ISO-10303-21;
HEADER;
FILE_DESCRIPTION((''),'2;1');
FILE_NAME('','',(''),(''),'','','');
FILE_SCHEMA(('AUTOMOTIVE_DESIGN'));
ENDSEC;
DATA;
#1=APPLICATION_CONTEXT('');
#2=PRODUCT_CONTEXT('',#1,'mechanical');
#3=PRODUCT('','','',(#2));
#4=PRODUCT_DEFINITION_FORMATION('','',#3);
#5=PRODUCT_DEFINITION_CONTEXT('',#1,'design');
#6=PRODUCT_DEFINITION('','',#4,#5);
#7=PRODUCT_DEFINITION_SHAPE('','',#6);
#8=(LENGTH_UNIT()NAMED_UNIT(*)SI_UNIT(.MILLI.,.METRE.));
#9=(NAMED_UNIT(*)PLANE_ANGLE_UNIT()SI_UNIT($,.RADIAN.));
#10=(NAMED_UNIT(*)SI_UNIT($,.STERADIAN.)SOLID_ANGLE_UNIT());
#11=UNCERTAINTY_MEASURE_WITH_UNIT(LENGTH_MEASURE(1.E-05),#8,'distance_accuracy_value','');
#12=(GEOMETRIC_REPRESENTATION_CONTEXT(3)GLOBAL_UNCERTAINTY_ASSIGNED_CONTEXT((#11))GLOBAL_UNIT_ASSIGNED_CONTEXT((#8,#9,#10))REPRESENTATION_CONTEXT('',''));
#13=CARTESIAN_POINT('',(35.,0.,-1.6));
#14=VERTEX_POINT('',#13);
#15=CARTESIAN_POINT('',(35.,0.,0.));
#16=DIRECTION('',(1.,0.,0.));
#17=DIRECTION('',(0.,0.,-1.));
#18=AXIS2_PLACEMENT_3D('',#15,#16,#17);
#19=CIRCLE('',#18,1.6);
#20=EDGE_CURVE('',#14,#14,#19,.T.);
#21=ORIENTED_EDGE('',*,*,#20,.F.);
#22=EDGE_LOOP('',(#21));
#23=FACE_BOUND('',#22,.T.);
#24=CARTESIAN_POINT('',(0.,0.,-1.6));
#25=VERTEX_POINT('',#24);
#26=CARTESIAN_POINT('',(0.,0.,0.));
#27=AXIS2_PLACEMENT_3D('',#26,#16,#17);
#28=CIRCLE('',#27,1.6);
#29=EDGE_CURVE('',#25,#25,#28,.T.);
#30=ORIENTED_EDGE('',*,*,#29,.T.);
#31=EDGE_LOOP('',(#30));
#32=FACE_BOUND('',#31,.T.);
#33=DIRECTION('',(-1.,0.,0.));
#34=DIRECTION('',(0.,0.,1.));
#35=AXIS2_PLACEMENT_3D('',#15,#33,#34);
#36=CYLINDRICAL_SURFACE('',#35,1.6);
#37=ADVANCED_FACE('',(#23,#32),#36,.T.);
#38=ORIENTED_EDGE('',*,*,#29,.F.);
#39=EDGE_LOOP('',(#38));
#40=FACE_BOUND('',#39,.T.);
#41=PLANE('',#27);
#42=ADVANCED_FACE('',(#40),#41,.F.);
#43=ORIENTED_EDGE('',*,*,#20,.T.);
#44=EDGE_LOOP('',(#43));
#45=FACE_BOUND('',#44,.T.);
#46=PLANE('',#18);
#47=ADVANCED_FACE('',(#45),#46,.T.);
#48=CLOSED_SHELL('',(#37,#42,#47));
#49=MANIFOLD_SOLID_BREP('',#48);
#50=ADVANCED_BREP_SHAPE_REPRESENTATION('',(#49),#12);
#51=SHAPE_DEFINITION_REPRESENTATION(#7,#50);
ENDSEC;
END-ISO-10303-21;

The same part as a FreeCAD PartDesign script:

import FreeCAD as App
import Part
import Sketcher

V = App.Vector

doc = App.newDocument("Part")
body = doc.addObject("PartDesign::Body", "Body")

sketch1 = body.newObject("Sketcher::SketchObject", "Sketch")
sketch1.AttachmentSupport = (doc.getObject("YZ_Plane"), [""])
sketch1.MapMode = "FlatFace"
sketch1.addGeometry(Part.Circle(V(0, 0, 0), V(0, 0, 1), 1.6), False)
sketch1.addConstraint(Sketcher.Constraint("Coincident", 0, 3, -1, 1))
sketch1.addConstraint(Sketcher.Constraint("Diameter", 0, 3.2))
pad1 = body.newObject("PartDesign::Pad", "Pad")
pad1.Profile = sketch1
pad1.Length = 35

doc.recompute()
